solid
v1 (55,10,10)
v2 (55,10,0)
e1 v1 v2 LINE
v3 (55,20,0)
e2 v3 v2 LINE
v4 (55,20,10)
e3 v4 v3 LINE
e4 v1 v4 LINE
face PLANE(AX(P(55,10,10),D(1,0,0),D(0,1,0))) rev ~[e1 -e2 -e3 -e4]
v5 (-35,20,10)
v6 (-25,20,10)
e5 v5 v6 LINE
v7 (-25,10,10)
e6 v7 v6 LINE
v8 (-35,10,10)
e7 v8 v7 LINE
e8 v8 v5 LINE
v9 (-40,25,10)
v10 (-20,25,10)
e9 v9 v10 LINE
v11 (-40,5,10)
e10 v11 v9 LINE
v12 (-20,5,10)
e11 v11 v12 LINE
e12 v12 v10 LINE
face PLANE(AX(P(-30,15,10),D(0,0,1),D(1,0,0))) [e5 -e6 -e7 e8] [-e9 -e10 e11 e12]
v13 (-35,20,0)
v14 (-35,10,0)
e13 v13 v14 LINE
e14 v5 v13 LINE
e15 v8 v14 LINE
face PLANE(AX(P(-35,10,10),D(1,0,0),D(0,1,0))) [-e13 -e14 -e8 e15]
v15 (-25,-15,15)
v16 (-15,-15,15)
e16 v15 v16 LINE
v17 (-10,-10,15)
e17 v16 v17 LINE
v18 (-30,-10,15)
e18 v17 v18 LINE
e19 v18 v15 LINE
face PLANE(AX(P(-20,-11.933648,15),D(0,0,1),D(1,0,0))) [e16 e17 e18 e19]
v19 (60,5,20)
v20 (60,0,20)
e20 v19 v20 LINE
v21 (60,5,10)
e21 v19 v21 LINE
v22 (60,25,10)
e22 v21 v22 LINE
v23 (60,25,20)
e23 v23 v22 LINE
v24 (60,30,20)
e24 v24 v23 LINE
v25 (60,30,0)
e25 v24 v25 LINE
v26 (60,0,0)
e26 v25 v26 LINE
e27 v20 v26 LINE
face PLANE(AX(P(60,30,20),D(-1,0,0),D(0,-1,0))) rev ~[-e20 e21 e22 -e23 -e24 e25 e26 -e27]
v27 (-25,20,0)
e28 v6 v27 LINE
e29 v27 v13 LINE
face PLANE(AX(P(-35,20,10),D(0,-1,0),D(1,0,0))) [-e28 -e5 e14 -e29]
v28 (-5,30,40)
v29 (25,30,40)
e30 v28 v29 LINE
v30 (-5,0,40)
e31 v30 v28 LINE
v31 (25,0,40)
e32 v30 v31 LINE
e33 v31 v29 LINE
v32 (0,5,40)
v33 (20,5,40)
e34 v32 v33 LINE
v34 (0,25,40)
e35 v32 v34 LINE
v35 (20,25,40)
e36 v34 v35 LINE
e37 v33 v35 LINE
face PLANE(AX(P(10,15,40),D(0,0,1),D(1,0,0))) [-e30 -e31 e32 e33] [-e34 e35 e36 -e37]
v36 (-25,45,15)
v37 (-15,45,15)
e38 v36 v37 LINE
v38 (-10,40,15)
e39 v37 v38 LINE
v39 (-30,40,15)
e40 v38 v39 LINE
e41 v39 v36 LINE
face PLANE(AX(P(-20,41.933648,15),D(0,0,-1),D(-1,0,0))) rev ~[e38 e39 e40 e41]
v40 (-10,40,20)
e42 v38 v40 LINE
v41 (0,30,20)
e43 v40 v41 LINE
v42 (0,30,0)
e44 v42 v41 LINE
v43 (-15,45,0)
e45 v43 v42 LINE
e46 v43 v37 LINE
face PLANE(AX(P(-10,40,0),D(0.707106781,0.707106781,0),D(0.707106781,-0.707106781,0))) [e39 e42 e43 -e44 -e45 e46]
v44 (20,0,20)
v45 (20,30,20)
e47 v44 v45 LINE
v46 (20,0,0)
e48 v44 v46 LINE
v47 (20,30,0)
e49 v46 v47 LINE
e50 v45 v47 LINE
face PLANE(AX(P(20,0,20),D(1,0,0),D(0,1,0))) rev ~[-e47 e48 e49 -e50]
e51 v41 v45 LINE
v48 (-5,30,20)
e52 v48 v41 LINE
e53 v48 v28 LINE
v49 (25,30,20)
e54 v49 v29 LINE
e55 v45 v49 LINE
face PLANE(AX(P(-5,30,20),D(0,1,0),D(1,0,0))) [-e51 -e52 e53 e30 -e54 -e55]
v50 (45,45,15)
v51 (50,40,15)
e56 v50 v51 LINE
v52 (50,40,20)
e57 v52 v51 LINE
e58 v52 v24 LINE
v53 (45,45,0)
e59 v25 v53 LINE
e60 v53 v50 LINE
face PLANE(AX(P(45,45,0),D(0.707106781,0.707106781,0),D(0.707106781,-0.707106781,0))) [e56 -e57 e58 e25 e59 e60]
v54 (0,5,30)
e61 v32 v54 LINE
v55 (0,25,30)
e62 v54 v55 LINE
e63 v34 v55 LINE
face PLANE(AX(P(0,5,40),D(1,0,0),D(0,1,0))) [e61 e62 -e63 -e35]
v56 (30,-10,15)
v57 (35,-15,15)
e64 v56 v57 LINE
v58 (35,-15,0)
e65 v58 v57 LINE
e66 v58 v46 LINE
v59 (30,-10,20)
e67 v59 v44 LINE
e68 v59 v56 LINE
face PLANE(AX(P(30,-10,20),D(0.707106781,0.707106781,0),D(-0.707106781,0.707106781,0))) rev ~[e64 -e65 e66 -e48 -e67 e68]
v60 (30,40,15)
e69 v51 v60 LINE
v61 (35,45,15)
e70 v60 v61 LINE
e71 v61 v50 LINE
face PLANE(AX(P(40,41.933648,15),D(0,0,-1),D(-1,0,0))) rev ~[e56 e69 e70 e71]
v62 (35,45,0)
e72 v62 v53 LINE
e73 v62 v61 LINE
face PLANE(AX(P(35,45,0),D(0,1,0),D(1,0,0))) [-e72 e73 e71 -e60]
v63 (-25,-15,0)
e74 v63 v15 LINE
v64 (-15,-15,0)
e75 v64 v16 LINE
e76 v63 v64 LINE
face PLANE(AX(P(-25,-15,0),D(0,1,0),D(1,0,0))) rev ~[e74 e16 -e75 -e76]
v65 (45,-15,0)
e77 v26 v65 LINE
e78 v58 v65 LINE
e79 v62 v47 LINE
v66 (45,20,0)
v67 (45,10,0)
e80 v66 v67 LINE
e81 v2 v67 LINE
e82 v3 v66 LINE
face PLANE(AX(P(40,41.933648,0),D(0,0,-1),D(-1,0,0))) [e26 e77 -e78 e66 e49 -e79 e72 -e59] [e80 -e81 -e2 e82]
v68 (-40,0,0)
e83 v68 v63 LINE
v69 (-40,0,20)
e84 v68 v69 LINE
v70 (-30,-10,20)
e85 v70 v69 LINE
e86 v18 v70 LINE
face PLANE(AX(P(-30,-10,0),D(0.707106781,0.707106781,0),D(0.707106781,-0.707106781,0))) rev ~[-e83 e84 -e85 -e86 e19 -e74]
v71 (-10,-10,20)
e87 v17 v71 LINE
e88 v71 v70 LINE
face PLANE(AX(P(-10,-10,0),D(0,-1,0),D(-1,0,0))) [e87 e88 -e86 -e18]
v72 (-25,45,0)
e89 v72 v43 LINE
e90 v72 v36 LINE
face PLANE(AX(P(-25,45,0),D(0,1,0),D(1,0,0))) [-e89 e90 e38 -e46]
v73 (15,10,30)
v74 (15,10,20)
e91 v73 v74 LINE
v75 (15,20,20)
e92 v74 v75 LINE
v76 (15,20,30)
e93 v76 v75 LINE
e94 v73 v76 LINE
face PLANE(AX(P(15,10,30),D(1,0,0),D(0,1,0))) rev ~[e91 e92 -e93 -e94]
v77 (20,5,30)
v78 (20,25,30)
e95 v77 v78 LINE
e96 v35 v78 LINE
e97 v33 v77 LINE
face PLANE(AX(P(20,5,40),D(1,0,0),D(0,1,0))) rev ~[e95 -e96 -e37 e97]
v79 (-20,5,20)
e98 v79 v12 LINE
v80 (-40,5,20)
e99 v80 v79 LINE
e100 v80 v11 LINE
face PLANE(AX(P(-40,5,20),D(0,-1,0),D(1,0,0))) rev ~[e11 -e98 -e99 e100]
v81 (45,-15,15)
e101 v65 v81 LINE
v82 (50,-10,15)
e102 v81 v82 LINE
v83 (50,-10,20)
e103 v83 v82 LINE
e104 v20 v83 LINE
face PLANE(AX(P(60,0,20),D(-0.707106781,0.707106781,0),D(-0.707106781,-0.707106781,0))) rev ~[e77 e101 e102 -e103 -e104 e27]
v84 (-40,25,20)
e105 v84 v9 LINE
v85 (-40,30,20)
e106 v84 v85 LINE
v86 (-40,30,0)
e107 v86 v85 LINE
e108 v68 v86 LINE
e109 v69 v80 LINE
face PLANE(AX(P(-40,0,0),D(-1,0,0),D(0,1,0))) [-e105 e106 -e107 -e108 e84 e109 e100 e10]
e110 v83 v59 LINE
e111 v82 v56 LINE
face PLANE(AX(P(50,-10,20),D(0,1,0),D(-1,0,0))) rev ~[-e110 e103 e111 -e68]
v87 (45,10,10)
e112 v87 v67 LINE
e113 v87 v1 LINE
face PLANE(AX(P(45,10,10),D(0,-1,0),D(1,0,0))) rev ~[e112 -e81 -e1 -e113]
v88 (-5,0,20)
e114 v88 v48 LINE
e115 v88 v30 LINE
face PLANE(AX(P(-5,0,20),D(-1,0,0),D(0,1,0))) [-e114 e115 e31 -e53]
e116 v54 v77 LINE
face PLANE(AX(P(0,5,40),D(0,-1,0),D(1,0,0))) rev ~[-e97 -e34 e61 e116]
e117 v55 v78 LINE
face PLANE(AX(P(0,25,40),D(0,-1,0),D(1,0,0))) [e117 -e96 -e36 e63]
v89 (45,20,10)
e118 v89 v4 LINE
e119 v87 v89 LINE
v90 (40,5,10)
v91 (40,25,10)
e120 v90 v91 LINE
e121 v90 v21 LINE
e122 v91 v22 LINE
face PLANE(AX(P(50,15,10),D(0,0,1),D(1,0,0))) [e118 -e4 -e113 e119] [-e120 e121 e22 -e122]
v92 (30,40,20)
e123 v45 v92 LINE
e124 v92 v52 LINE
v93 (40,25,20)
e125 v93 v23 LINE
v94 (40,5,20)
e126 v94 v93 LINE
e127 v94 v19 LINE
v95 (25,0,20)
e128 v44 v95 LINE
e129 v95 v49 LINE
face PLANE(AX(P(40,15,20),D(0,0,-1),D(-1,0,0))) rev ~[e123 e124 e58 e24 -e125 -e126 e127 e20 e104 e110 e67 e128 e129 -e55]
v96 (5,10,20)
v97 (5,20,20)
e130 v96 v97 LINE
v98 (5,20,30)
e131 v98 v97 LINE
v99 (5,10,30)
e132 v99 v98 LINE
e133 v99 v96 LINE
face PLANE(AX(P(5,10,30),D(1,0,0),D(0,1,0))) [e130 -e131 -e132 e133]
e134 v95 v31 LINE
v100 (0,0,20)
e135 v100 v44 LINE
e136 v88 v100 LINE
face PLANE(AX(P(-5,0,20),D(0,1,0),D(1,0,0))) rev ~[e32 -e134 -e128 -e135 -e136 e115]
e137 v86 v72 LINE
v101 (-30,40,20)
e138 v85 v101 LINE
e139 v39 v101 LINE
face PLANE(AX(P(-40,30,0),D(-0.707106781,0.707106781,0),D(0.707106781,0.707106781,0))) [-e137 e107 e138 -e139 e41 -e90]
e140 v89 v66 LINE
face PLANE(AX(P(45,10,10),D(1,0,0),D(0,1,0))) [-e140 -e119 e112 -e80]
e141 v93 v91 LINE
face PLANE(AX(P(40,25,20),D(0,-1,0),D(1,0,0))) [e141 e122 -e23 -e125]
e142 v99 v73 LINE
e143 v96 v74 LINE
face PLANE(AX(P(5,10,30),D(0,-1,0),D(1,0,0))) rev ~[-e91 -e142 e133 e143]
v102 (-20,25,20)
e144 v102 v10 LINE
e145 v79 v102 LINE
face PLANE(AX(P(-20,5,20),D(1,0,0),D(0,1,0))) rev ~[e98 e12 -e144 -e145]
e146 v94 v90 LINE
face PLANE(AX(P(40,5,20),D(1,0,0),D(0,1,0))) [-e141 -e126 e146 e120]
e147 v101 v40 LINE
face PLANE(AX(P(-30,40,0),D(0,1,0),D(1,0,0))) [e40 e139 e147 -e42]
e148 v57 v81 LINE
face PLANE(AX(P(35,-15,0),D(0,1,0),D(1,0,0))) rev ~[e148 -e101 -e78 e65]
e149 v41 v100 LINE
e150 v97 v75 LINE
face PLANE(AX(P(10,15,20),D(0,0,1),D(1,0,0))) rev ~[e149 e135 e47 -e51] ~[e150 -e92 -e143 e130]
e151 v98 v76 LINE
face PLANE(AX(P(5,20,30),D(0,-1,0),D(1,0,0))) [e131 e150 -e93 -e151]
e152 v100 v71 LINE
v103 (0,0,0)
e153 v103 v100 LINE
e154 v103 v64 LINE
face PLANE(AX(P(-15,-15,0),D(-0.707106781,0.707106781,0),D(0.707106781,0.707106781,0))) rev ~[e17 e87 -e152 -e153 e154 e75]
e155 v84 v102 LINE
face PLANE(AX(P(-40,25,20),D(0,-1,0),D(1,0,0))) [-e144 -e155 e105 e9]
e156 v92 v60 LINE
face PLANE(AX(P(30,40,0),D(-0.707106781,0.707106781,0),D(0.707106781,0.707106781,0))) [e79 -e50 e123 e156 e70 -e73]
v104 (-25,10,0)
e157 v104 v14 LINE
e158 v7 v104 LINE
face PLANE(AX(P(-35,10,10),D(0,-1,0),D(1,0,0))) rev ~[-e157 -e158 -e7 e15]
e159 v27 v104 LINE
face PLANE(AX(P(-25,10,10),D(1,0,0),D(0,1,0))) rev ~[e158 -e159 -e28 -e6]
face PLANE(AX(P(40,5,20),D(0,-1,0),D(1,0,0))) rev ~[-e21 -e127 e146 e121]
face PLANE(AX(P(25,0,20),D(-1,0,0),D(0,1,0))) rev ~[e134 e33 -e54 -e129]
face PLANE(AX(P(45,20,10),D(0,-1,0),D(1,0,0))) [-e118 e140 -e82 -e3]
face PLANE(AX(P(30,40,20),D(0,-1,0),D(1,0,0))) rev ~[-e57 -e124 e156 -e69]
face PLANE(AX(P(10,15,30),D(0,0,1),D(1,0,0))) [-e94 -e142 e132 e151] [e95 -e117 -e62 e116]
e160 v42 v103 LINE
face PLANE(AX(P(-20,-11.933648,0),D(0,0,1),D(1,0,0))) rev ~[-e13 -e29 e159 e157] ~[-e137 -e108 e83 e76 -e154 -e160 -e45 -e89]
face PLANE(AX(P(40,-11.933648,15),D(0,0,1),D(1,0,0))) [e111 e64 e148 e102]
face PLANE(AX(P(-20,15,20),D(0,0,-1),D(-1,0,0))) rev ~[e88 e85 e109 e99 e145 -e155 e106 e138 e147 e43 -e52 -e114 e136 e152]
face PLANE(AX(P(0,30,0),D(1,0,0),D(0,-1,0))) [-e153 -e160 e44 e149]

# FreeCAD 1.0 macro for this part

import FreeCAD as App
import Part
import Sketcher
from FreeCAD import Vector
Q = App.Units.Quantity


def add_polygon(sketch, points):
    """Adds a closed chain of lines whose ends are joined by coincident constraints."""
    first, n = sketch.GeometryCount, len(points)
    for a, b in zip(points, points[1:] + points[:1]):
        sketch.addGeometry(Part.LineSegment(App.Vector(*a, 0), App.Vector(*b, 0)), False)
    for i in range(n):
        sketch.addConstraint(Sketcher.Constraint("Coincident", first + i, 2, first + (i + 1) % n, 1))

doc = App.newDocument("Part")
body = doc.addObject("PartDesign::Body", "Body")

# Sketch on XY plane
sketch1 = body.newObject("Sketcher::SketchObject", "Sketch")
sketch1.AttachmentSupport = (doc.getObject("XY_Plane"), [""])
sketch1.MapMode = "FlatFace"
add_polygon(sketch1, [(-40, 30), (-40, 0), (-30, -10), (-10, -10), (0, 0), (0, 30), (-10, 40), (-30, 40)])  # lines 0-7
sketch1.addConstraint(Sketcher.Constraint("Vertical", 0))
sketch1.addConstraint(Sketcher.Constraint("Horizontal", 2))
sketch1.addConstraint(Sketcher.Constraint("Vertical", 4))
sketch1.addConstraint(Sketcher.Constraint("Horizontal", 6))
sketch1.addConstraint(Sketcher.Constraint("Coincident", 3, 2, -1, 1))
sketch1.addConstraint(Sketcher.Constraint("PointOnObject", 0, 2, -1))
sketch1.addConstraint(Sketcher.Constraint("Perpendicular", 1, 3))
sketch1.addConstraint(Sketcher.Constraint("Perpendicular", 3, 5))
sketch1.addConstraint(Sketcher.Constraint("Perpendicular", 5, 7))
sketch1.addConstraint(Sketcher.Constraint("Horizontal", 4, 2, 7, 2))
sketch1.addConstraint(Sketcher.Constraint("Vertical", 2, 2, 5, 2))
sketch1.addConstraint(Sketcher.Constraint("Vertical", 1, 2, 6, 2))
sketch1.addConstraint(Sketcher.Constraint("DistanceX", 2, 1, 2, 2, Q("20 mm")))
sketch1.addConstraint(Sketcher.Constraint("DistanceY", 0, 2, 0, 1, Q("30 mm")))
sketch1.addConstraint(Sketcher.Constraint("DistanceX", 0, 2, -1, 1, Q("40 mm")))
pad1 = body.newObject("PartDesign::Pad", "Pad")
pad1.Profile = sketch1
pad1.Length = 20

# Sketch on XY plane
sketch2 = body.newObject("Sketcher::SketchObject", "Sketch001")
sketch2.AttachmentSupport = (doc.getObject("XY_Plane"), [""])
sketch2.MapMode = "FlatFace"
sketch2.AttachmentOffset = App.Placement(Vector(0, 0, 20), App.Rotation())
add_polygon(sketch2, [(-40, 25), (-40, 5), (-20, 5), (-20, 25)])  # lines 0-3
sketch2.addConstraint(Sketcher.Constraint("Vertical", 0))
sketch2.addConstraint(Sketcher.Constraint("Horizontal", 1))
sketch2.addConstraint(Sketcher.Constraint("Vertical", 2))
sketch2.addConstraint(Sketcher.Constraint("Horizontal", 3))
sketch2.addConstraint(Sketcher.Constraint("Equal", 3, 0))
sketch2.addConstraint(Sketcher.Constraint("DistanceX", 1, 1, 1, 2, Q("20 mm")))
sketch2.addConstraint(Sketcher.Constraint("DistanceX", 0, 2, -1, 1, Q("40 mm")))
sketch2.addConstraint(Sketcher.Constraint("DistanceY", -1, 1, 0, 2, Q("5 mm")))
pocket1 = body.newObject("PartDesign::Pocket", "Pocket")
pocket1.Profile = sketch2
pocket1.Length = 10

# Sketch on XY plane
sketch3 = body.newObject("Sketcher::SketchObject", "Sketch002")
sketch3.AttachmentSupport = (doc.getObject("XY_Plane"), [""])
sketch3.MapMode = "FlatFace"
sketch3.AttachmentOffset = App.Placement(Vector(0, 0, 10), App.Rotation())
add_polygon(sketch3, [(-35, 20), (-35, 10), (-25, 10), (-25, 20)])  # lines 0-3
sketch3.addConstraint(Sketcher.Constraint("Vertical", 0))
sketch3.addConstraint(Sketcher.Constraint("Horizontal", 1))
sketch3.addConstraint(Sketcher.Constraint("Vertical", 2))
sketch3.addConstraint(Sketcher.Constraint("Horizontal", 3))
sketch3.addConstraint(Sketcher.Constraint("Equal", 3, 0))
sketch3.addConstraint(Sketcher.Constraint("DistanceX", 1, 1, 1, 2, Q("10 mm")))
sketch3.addConstraint(Sketcher.Constraint("DistanceX", 0, 2, -1, 1, Q("35 mm")))
sketch3.addConstraint(Sketcher.Constraint("DistanceY", -1, 1, 0, 2, Q("10 mm")))
pocket2 = body.newObject("PartDesign::Pocket", "Pocket001")
pocket2.Profile = sketch3
pocket2.Length = 194

# Sketch on XY plane
sketch4 = body.newObject("Sketcher::SketchObject", "Sketch003")
sketch4.AttachmentSupport = (doc.getObject("XY_Plane"), [""])
sketch4.MapMode = "FlatFace"
add_polygon(sketch4, [(-25, -15), (-30, -10), (-10, -10), (-15, -15)])  # lines 0-3
add_polygon(sketch4, [(-30, 40), (-25, 45), (-15, 45), (-10, 40)])  # lines 4-7
sketch4.addConstraint(Sketcher.Constraint("Horizontal", 1))
sketch4.addConstraint(Sketcher.Constraint("Horizontal", 3))
sketch4.addConstraint(Sketcher.Constraint("Horizontal", 5))
sketch4.addConstraint(Sketcher.Constraint("Horizontal", 7))
sketch4.addConstraint(Sketcher.Constraint("Perpendicular", 0, 2))
sketch4.addConstraint(Sketcher.Constraint("Parallel", 2, 4))
sketch4.addConstraint(Sketcher.Constraint("Perpendicular", 4, 6))
sketch4.addConstraint(Sketcher.Constraint("Vertical", 3, 2, 4, 2))
sketch4.addConstraint(Sketcher.Constraint("Vertical", 2, 2, 5, 2))
sketch4.addConstraint(Sketcher.Constraint("Vertical", 1, 2, 6, 2))
sketch4.addConstraint(Sketcher.Constraint("Vertical", 0, 2, 7, 2))
sketch4.addConstraint(Sketcher.Constraint("DistanceX", 1, 1, 1, 2, Q("20 mm")))
sketch4.addConstraint(Sketcher.Constraint("DistanceX", 3, 2, 3, 1, Q("10 mm")))
sketch4.addConstraint(Sketcher.Constraint("DistanceX", 0, 2, -1, 1, Q("30 mm")))
sketch4.addConstraint(Sketcher.Constraint("DistanceY", 0, 2, -1, 1, Q("10 mm")))
sketch4.addConstraint(Sketcher.Constraint("DistanceY", -1, 1, 4, 2, Q("45 mm")))
pad2 = body.newObject("PartDesign::Pad", "Pad001")
pad2.Profile = sketch4
pad2.Length = 15

# Sketch on XY plane
sketch5 = body.newObject("Sketcher::SketchObject", "Sketch004")
sketch5.AttachmentSupport = (doc.getObject("XY_Plane"), [""])
sketch5.MapMode = "FlatFace"
sketch5.AttachmentOffset = App.Placement(Vector(0, 0, 20), App.Rotation())
add_polygon(sketch5, [(-5, 30), (-5, 0), (25, 0), (25, 30)])  # lines 0-3
sketch5.addConstraint(Sketcher.Constraint("Vertical", 0))
sketch5.addConstraint(Sketcher.Constraint("Horizontal", 1))
sketch5.addConstraint(Sketcher.Constraint("Vertical", 2))
sketch5.addConstraint(Sketcher.Constraint("Horizontal", 3))
sketch5.addConstraint(Sketcher.Constraint("PointOnObject", 0, 2, -1))
sketch5.addConstraint(Sketcher.Constraint("Equal", 3, 0))
sketch5.addConstraint(Sketcher.Constraint("DistanceX", 1, 1, 1, 2, Q("30 mm")))
sketch5.addConstraint(Sketcher.Constraint("DistanceX", 0, 2, -1, 1, Q("5 mm")))
pad3 = body.newObject("PartDesign::Pad", "Pad002")
pad3.Profile = sketch5
pad3.Length = 20

# Sketch on XY plane
sketch6 = body.newObject("Sketcher::SketchObject", "Sketch005")
sketch6.AttachmentSupport = (doc.getObject("XY_Plane"), [""])
sketch6.MapMode = "FlatFace"
sketch6.AttachmentOffset = App.Placement(Vector(0, 0, 40), App.Rotation())
add_polygon(sketch6, [(0, 25), (0, 5), (20, 5), (20, 25)])  # lines 0-3
sketch6.addConstraint(Sketcher.Constraint("Vertical", 0))
sketch6.addConstraint(Sketcher.Constraint("Horizontal", 1))
sketch6.addConstraint(Sketcher.Constraint("Vertical", 2))
sketch6.addConstraint(Sketcher.Constraint("Horizontal", 3))
sketch6.addConstraint(Sketcher.Constraint("PointOnObject", 0, 2, -2))
sketch6.addConstraint(Sketcher.Constraint("Equal", 3, 0))
sketch6.addConstraint(Sketcher.Constraint("DistanceX", 1, 1, 1, 2, Q("20 mm")))
sketch6.addConstraint(Sketcher.Constraint("DistanceY", -1, 1, 0, 2, Q("5 mm")))
pocket3 = body.newObject("PartDesign::Pocket", "Pocket002")
pocket3.Profile = sketch6
pocket3.Length = 10

# Sketch on XY plane
sketch7 = body.newObject("Sketcher::SketchObject", "Sketch006")
sketch7.AttachmentSupport = (doc.getObject("XY_Plane"), [""])
sketch7.MapMode = "FlatFace"
sketch7.AttachmentOffset = App.Placement(Vector(0, 0, 30), App.Rotation())
add_polygon(sketch7, [(5, 20), (5, 10), (15, 10), (15, 20)])  # lines 0-3
sketch7.addConstraint(Sketcher.Constraint("Vertical", 0))
sketch7.addConstraint(Sketcher.Constraint("Horizontal", 1))
sketch7.addConstraint(Sketcher.Constraint("Vertical", 2))
sketch7.addConstraint(Sketcher.Constraint("Horizontal", 3))
sketch7.addConstraint(Sketcher.Constraint("Equal", 3, 0))
sketch7.addConstraint(Sketcher.Constraint("DistanceX", 1, 1, 1, 2, Q("10 mm")))
sketch7.addConstraint(Sketcher.Constraint("DistanceX", -1, 1, 0, 2, Q("5 mm")))
sketch7.addConstraint(Sketcher.Constraint("DistanceY", -1, 1, 0, 2, Q("10 mm")))
pocket4 = body.newObject("PartDesign::Pocket", "Pocket003")
pocket4.Profile = sketch7
pocket4.Length = 41

# Sketch on XY plane
sketch8 = body.newObject("Sketcher::SketchObject", "Sketch007")
sketch8.AttachmentSupport = (doc.getObject("XY_Plane"), [""])
sketch8.MapMode = "FlatFace"
sketch8.AttachmentOffset = App.Placement(Vector(0, 0, 20), App.Rotation())
add_polygon(sketch8, [(20, 30), (30, 40), (50, 40), (60, 30), (60, 0), (50, -10), (30, -10), (20, 0)])  # lines 0-7
sketch8.addConstraint(Sketcher.Constraint("Horizontal", 1))
sketch8.addConstraint(Sketcher.Constraint("Vertical", 3))
sketch8.addConstraint(Sketcher.Constraint("Horizontal", 5))
sketch8.addConstraint(Sketcher.Constraint("Vertical", 7))
sketch8.addConstraint(Sketcher.Constraint("PointOnObject", 3, 2, -1))
sketch8.addConstraint(Sketcher.Constraint("PointOnObject", 6, 2, -1))
sketch8.addConstraint(Sketcher.Constraint("Perpendicular", 0, 2))
sketch8.addConstraint(Sketcher.Constraint("Perpendicular", 2, 4))
sketch8.addConstraint(Sketcher.Constraint("Perpendicular", 4, 6))
sketch8.addConstraint(Sketcher.Constraint("Horizontal", 2, 2, 7, 2))
sketch8.addConstraint(Sketcher.Constraint("Vertical", 1, 2, 4, 2))
sketch8.addConstraint(Sketcher.Constraint("Vertical", 0, 2, 5, 2))
sketch8.addConstraint(Sketcher.Constraint("DistanceX", 1, 1, 1, 2, Q("20 mm")))
sketch8.addConstraint(Sketcher.Constraint("DistanceY", 3, 2, 3, 1, Q("30 mm")))
sketch8.addConstraint(Sketcher.Constraint("DistanceX", -1, 1, 0, 2, Q("30 mm")))
sketch8.addConstraint(Sketcher.Constraint("DistanceY", -1, 1, 0, 2, Q("40 mm")))
pad4 = body.newObject("PartDesign::Pad", "Pad003")
pad4.Profile = sketch8
pad4.Length = 20
pad4.Reversed = True

# Sketch on XY plane
sketch9 = body.newObject("Sketcher::SketchObject", "Sketch008")
sketch9.AttachmentSupport = (doc.getObject("XY_Plane"), [""])
sketch9.MapMode = "FlatFace"
add_polygon(sketch9, [(35, 45), (45, 45), (50, 40), (30, 40)])  # lines 0-3
add_polygon(sketch9, [(30, -10), (50, -10), (45, -15), (35, -15)])  # lines 4-7
sketch9.addConstraint(Sketcher.Constraint("Horizontal", 0))
sketch9.addConstraint(Sketcher.Constraint("Horizontal", 2))
sketch9.addConstraint(Sketcher.Constraint("Horizontal", 4))
sketch9.addConstraint(Sketcher.Constraint("Horizontal", 6))
sketch9.addConstraint(Sketcher.Constraint("Perpendicular", 1, 3))
sketch9.addConstraint(Sketcher.Constraint("Parallel", 3, 5))
sketch9.addConstraint(Sketcher.Constraint("Perpendicular", 5, 7))
sketch9.addConstraint(Sketcher.Constraint("Vertical", 1, 2, 4, 2))
sketch9.addConstraint(Sketcher.Constraint("Vertical", 0, 2, 5, 2))
sketch9.addConstraint(Sketcher.Constraint("Vertical", 3, 2, 6, 2))
sketch9.addConstraint(Sketcher.Constraint("Vertical", 2, 2, 7, 2))
sketch9.addConstraint(Sketcher.Constraint("DistanceX", 0, 1, 0, 2, Q("10 mm")))
sketch9.addConstraint(Sketcher.Constraint("DistanceX", 2, 2, 2, 1, Q("20 mm")))
sketch9.addConstraint(Sketcher.Constraint("DistanceX", -1, 1, 0, 2, Q("45 mm")))
sketch9.addConstraint(Sketcher.Constraint("DistanceY", -1, 1, 0, 2, Q("45 mm")))
sketch9.addConstraint(Sketcher.Constraint("DistanceY", 4, 2, -1, 1, Q("10 mm")))
pad5 = body.newObject("PartDesign::Pad", "Pad004")
pad5.Profile = sketch9
pad5.Length = 15

# Sketch on XY plane
sketch10 = body.newObject("Sketcher::SketchObject", "Sketch009")
sketch10.AttachmentSupport = (doc.getObject("XY_Plane"), [""])
sketch10.MapMode = "FlatFace"
sketch10.AttachmentOffset = App.Placement(Vector(0, 0, 20), App.Rotation())
add_polygon(sketch10, [(40, 25), (40, 5), (60, 5), (60, 25)])  # lines 0-3
sketch10.addConstraint(Sketcher.Constraint("Vertical", 0))
sketch10.addConstraint(Sketcher.Constraint("Horizontal", 1))
sketch10.addConstraint(Sketcher.Constraint("Vertical", 2))
sketch10.addConstraint(Sketcher.Constraint("Horizontal", 3))
sketch10.addConstraint(Sketcher.Constraint("Equal", 3, 0))
sketch10.addConstraint(Sketcher.Constraint("DistanceX", 1, 1, 1, 2, Q("20 mm")))
sketch10.addConstraint(Sketcher.Constraint("DistanceX", -1, 1, 0, 2, Q("40 mm")))
sketch10.addConstraint(Sketcher.Constraint("DistanceY", -1, 1, 0, 2, Q("5 mm")))
pocket5 = body.newObject("PartDesign::Pocket", "Pocket004")
pocket5.Profile = sketch10
pocket5.Length = 10

# Sketch on XY plane
sketch11 = body.newObject("Sketcher::SketchObject", "Sketch010")
sketch11.AttachmentSupport = (doc.getObject("XY_Plane"), [""])
sketch11.MapMode = "FlatFace"
sketch11.AttachmentOffset = App.Placement(Vector(0, 0, 10), App.Rotation())
add_polygon(sketch11, [(45, 20), (45, 10), (55, 10), (55, 20)])  # lines 0-3
sketch11.addConstraint(Sketcher.Constraint("Vertical", 0))
sketch11.addConstraint(Sketcher.Constraint("Horizontal", 1))
sketch11.addConstraint(Sketcher.Constraint("Vertical", 2))
sketch11.addConstraint(Sketcher.Constraint("Horizontal", 3))
sketch11.addConstraint(Sketcher.Constraint("Equal", 3, 0))
sketch11.addConstraint(Sketcher.Constraint("DistanceX", 1, 1, 1, 2, Q("10 mm")))
sketch11.addConstraint(Sketcher.Constraint("DistanceX", -1, 1, 0, 2, Q("45 mm")))
sketch11.addConstraint(Sketcher.Constraint("DistanceY", -1, 1, 0, 2, Q("10 mm")))
pocket6 = body.newObject("PartDesign::Pocket", "Pocket005")
pocket6.Profile = sketch11
pocket6.Length = 31

doc.recompute()
